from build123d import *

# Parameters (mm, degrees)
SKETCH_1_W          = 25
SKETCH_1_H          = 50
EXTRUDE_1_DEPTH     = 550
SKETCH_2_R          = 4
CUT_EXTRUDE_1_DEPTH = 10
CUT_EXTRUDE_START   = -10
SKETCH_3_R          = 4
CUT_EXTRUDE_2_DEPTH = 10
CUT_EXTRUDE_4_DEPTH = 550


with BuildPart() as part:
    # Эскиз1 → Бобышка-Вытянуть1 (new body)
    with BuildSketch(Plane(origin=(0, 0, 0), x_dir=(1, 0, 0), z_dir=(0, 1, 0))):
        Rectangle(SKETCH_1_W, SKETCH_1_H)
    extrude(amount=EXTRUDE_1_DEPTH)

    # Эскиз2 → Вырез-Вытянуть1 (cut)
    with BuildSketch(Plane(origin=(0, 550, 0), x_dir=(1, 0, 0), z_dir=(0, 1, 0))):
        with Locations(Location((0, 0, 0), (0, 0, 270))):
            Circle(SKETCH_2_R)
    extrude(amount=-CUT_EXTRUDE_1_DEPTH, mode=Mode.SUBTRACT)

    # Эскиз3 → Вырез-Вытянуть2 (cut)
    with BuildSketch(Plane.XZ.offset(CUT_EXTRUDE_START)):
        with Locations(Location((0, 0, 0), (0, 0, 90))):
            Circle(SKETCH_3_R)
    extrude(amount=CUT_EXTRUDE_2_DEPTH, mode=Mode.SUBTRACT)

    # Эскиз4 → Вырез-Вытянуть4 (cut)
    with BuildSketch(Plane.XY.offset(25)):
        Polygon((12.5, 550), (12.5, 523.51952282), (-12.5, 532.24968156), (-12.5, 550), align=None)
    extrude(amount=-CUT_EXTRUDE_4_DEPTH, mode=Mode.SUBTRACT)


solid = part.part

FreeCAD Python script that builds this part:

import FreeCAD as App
import Part
import Sketcher


def add_polygon(sketch, points):
    """Adds a closed chain of lines whose ends are joined by coincident constraints."""
    first, n = sketch.GeometryCount, len(points)
    for a, b in zip(points, points[1:] + points[:1]):
        sketch.addGeometry(Part.LineSegment(App.Vector(*a, 0), App.Vector(*b, 0)), False)
    for i in range(n):
        sketch.addConstraint(Sketcher.Constraint("Coincident", first + i, 2, first + (i + 1) % n, 1))

doc = App.newDocument("Part")
params = doc.addObject("Spreadsheet::Sheet", "Params")
for row, (alias, value) in enumerate([
    ("sketch1_width", "25 mm"),
    ("sketch1_height", "50 mm"),
    ("pad1_length", "550 mm"),
    ("sketch2_diameter", "8 mm"),
    ("pocket1_length", "10 mm"),
    ("sketch3_diameter", "8 mm"),
    ("pocket2_length", "10 mm"),
    ("sketch4_width", "25 mm"),
    ("pocket3_length", "550 mm"),
], start=1):
    params.set(f"A{row}", alias)
    params.set(f"B{row}", "=" + value)
    params.setAlias(f"B{row}", alias)

body = doc.addObject("PartDesign::Body", "Body")

# Sketch on XZ plane
sketch1 = doc.addObject("Sketcher::SketchObject", "Sketch")
body.addObject(sketch1)
sketch1.AttachmentSupport = (doc.XZ_Plane, [""])
sketch1.MapMode = "FlatFace"
add_polygon(sketch1, [(-12, -25), (-12, 25), (12, 25), (12, -25)])  # lines 0-3
sketch1.addConstraint([
    Sketcher.Constraint("Vertical", 0),
    Sketcher.Constraint("Horizontal", 1),
    Sketcher.Constraint("Vertical", 2),
    Sketcher.Constraint("Horizontal", 3),
    Sketcher.Constraint("Symmetric", 0, 2, 2, 2, -1, 1),
    Sketcher.Constraint("DistanceX", 1, 1, 1, 2, 25.0),
    Sketcher.Constraint("DistanceY", 0, 1, 0, 2, 50.0),
])
sketch1.setExpression("Constraints[9]", "Params.sketch1_width")
sketch1.setExpression("Constraints[10]", "Params.sketch1_height")
pad1 = doc.addObject("PartDesign::Pad", "Pad")
body.addObject(pad1)
pad1.Profile = sketch1
pad1.setExpression("Length", "Params.pad1_length")
pad1.Reversed = True

# Sketch on XZ plane
sketch2 = doc.addObject("Sketcher::SketchObject", "Sketch001")
body.addObject(sketch2)
sketch2.AttachmentSupport = (doc.XZ_Plane, [""])
sketch2.MapMode = "FlatFace"
sketch2.AttachmentOffset = App.Placement(App.Vector(0, 0, -550), App.Rotation())
sketch2.addGeometry(Part.Circle(App.Vector(0, 0, 0), App.Vector(0, 0, 1), 4), False)
sketch2.addConstraint([
    Sketcher.Constraint("Coincident", 0, 3, -1, 1),
    Sketcher.Constraint("Diameter", 0, 8.0),
])
sketch2.setExpression("Constraints[1]", "Params.sketch2_diameter")
pocket1 = doc.addObject("PartDesign::Pocket", "Pocket")
body.addObject(pocket1)
pocket1.Profile = sketch2
pocket1.setExpression("Length", "Params.pocket1_length")
pocket1.Reversed = True

# Sketch on XZ plane
sketch3 = doc.addObject("Sketcher::SketchObject", "Sketch002")
body.addObject(sketch3)
sketch3.AttachmentSupport = (doc.XZ_Plane, [""])
sketch3.MapMode = "FlatFace"
sketch3.AttachmentOffset = App.Placement(App.Vector(0, 0, -10), App.Rotation())
sketch3.addGeometry(Part.Circle(App.Vector(0, 0, 0), App.Vector(0, 0, 1), 4), False)
sketch3.addConstraint([
    Sketcher.Constraint("Coincident", 0, 3, -1, 1),
    Sketcher.Constraint("Diameter", 0, 8.0),
])
sketch3.setExpression("Constraints[1]", "Params.sketch3_diameter")
pocket2 = doc.addObject("PartDesign::Pocket", "Pocket001")
body.addObject(pocket2)
pocket2.Profile = sketch3
pocket2.setExpression("Length", "Params.pocket2_length")
pocket2.Reversed = True

# Sketch on XY plane
sketch4 = doc.addObject("Sketcher::SketchObject", "Sketch003")
body.addObject(sketch4)
sketch4.AttachmentSupport = (doc.XY_Plane, [""])
sketch4.MapMode = "FlatFace"
sketch4.AttachmentOffset = App.Placement(App.Vector(0, 0, 25), App.Rotation())
add_polygon(sketch4, [(12, 524), (12, 550), (-12, 550), (-12, 532)])  # lines 0-3
sketch4.addConstraint([
    Sketcher.Constraint("Vertical", 0),
    Sketcher.Constraint("Horizontal", 1),
    Sketcher.Constraint("Vertical", 2),
    Sketcher.Constraint("DistanceX", 1, 2, 1, 1, 25.0),
    Sketcher.Constraint("DistanceY", -1, 1, 0, 2, 550.0),
    Sketcher.Constraint("DistanceX", -1, 1, 0, 2, 12.5),
    Sketcher.Constraint("DistanceY", 2, 2, 2, 1, 17.750318),
    Sketcher.Constraint("DistanceY", 0, 1, 0, 2, 26.480477),
])
sketch4.setExpression("Constraints[7]", "Params.sketch4_width")
pocket3 = doc.addObject("PartDesign::Pocket", "Pocket002")
body.addObject(pocket3)
pocket3.Profile = sketch4
pocket3.setExpression("Length", "Params.pocket3_length")

doc.recompute()
